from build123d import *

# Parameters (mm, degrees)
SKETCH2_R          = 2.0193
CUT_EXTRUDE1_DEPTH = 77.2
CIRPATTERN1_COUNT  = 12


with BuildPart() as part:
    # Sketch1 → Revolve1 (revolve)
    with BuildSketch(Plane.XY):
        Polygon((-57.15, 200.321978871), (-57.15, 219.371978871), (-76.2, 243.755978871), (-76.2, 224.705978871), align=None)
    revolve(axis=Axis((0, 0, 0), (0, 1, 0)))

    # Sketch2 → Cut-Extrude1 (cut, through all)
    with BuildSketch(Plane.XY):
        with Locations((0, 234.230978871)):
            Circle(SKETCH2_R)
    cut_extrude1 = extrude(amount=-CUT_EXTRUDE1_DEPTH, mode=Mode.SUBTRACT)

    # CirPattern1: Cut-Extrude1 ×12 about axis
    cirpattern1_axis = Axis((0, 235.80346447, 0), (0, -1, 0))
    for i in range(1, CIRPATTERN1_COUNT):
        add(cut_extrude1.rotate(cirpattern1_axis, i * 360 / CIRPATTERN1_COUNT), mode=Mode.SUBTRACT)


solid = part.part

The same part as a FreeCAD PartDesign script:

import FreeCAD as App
import Part
import Sketcher
Q = App.Units.Quantity


def add_polygon(sketch, points):
    """Adds a closed chain of lines whose ends are joined by coincident constraints."""
    first, n = sketch.GeometryCount, len(points)
    for a, b in zip(points, points[1:] + points[:1]):
        sketch.addGeometry(Part.LineSegment(App.Vector(*a, 0), App.Vector(*b, 0)), False)
    for i in range(n):
        sketch.addConstraint(Sketcher.Constraint("Coincident", first + i, 2, first + (i + 1) % n, 1))

doc = App.newDocument("Part")
body = doc.addObject("PartDesign::Body", "Body")

# Sketch on XY plane
sketch1 = body.newObject("Sketcher::SketchObject", "Sketch")
sketch1.AttachmentSupport = (doc.getObject("XY_Plane"), [""])
sketch1.MapMode = "FlatFace"
add_polygon(sketch1, [(-57, 200), (-57, 219), (-76, 244), (-76, 225)])  # lines 0-3
sketch1.addConstraint([
    Sketcher.Constraint("Vertical", 0),
    Sketcher.Constraint("Vertical", 2),
    Sketcher.Constraint("Parallel", 1, 3),
    Sketcher.Constraint("DistanceX", 1, 2, -1, 1, Q("3 in")),
    Sketcher.Constraint("DistanceY", 0, 1, 0, 2, Q("0.75 in")),
    Sketcher.Constraint("DistanceX", 0, 2, -1, 1, Q("2.25 in")),
    Sketcher.Constraint("DistanceY", 0, 2, 1, 2, Q("0.96 in")),
    Sketcher.Constraint("DistanceY", -1, 1, 0, 2, 219.371979),
])
revolution = body.newObject("PartDesign::Revolution", "Revolution")
revolution.Profile = sketch1
revolution.ReferenceAxis = (sketch1, ["V_Axis"])
revolution.Angle = 360

# Sketch on XY plane
sketch2 = body.newObject("Sketcher::SketchObject", "Sketch001")
sketch2.AttachmentSupport = (doc.getObject("XY_Plane"), [""])
sketch2.MapMode = "FlatFace"
sketch2.addGeometry(Part.Circle(App.Vector(0, 234.2, 0), App.Vector(0, 0, 1), 2), False)
sketch2.addConstraint([
    Sketcher.Constraint("PointOnObject", 0, 3, -2),
    Sketcher.Constraint("Diameter", 0, Q("0.159 in")),
    Sketcher.Constraint("DistanceY", -1, 1, 0, 3, 234.230979),
])
pocket1 = body.newObject("PartDesign::Pocket", "Pocket")
pocket1.Profile = sketch2
pocket1.Type = "ThroughAll"
doc.recompute()

polarpattern = body.newObject("PartDesign::PolarPattern", "PolarPattern")
polarpattern.Originals = [pocket1]
polarpattern.Axis = (doc.getObject("Y_Axis"), [""])
polarpattern.Angle = 360
polarpattern.Occurrences = 12
body.Tip = polarpattern

doc.recompute()
